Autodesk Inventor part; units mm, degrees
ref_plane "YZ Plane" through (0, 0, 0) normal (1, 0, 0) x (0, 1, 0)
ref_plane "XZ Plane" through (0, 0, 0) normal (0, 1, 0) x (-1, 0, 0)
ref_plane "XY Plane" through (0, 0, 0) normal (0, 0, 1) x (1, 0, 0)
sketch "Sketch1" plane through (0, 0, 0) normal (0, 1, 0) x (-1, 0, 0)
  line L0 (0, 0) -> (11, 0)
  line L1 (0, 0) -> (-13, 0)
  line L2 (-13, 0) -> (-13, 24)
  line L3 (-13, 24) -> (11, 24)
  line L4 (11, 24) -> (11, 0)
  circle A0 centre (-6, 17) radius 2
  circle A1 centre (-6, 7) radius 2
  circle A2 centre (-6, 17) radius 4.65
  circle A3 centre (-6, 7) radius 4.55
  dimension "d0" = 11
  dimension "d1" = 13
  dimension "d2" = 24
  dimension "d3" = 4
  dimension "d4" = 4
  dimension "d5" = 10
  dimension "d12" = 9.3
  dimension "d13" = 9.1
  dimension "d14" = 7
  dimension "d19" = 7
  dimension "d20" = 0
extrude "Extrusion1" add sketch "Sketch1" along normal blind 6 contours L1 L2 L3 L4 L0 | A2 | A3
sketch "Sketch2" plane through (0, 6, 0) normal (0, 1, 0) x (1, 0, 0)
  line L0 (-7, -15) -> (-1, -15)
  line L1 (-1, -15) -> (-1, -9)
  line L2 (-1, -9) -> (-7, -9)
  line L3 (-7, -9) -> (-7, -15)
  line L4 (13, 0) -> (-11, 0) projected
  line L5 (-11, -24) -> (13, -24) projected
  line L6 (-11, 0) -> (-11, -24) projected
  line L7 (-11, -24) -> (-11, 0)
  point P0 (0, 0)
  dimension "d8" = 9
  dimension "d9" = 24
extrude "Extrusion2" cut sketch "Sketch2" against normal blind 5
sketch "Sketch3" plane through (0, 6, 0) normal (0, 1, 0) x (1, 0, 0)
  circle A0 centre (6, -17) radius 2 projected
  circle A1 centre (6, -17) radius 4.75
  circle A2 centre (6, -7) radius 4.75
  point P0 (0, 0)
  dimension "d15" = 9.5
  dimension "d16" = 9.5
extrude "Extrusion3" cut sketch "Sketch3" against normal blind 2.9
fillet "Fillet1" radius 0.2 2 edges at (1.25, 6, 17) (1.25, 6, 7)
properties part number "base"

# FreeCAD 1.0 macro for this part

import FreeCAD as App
import Part
import Sketcher
Q = App.Units.Quantity


def edges_at(feature, points):
    """Names of the edges that pass closest to the given points."""
    edges = feature.Shape.Edges
    near = lambda p: min(range(len(edges)), key=lambda i: edges[i].distToShape(Part.Vertex(*p))[0])
    return sorted({f"Edge{near(p) + 1}" for p in points})


def add_polygon(sketch, points):
    """Adds a closed chain of lines whose ends are joined by coincident constraints."""
    first, n = sketch.GeometryCount, len(points)
    for a, b in zip(points, points[1:] + points[:1]):
        sketch.addGeometry(Part.LineSegment(App.Vector(*a, 0), App.Vector(*b, 0)), False)
    for i in range(n):
        sketch.addConstraint(Sketcher.Constraint("Coincident", first + i, 2, first + (i + 1) % n, 1))

doc = App.newDocument("Part")
params = doc.addObject("Spreadsheet::Sheet", "Params")
for row, (alias, value) in enumerate([
    ("sketch1_diameter", "4 mm"),
    ("sketch1_width", "24 mm"),
    ("pad1_length", "6 mm"),
    ("sketch2_width", "6 mm"),
    ("pocket1_length", "5 mm"),
    ("sketch3_diameter", "9.5 mm"),
    ("sketch3_diameter2", "4 mm"),
    ("pocket2_length", "2.9 mm"),
    ("fillet_radius", "0.2 mm"),
], start=1):
    params.set(f"A{row}", alias)
    params.set(f"B{row}", "=" + value)
    params.setAlias(f"B{row}", alias)

body = doc.addObject("PartDesign::Body", "Body")

sketch1 = body.newObject("Sketcher::SketchObject", "Sketch")
sketch1.AttachmentSupport = (doc.getObject("XZ_Plane"), [""])
sketch1.MapMode = "FlatFace"
add_polygon(sketch1, [(13, 0), (-11, 0), (-11, 24), (13, 24)])
sketch1.addGeometry(Part.Circle(App.Vector(6, 7, 0), App.Vector(0, 0, 1), 2), False)
sketch1.addGeometry(Part.Circle(App.Vector(6, 17, 0), App.Vector(0, 0, 1), 2), False)
sketch1.addConstraint([
    Sketcher.Constraint("Horizontal", 0),
    Sketcher.Constraint("Vertical", 1),
    Sketcher.Constraint("Horizontal", 2),
    Sketcher.Constraint("Vertical", 3),
    Sketcher.Constraint("Equal", 4, 5),
    Sketcher.Constraint("PointOnObject", 0, 2, -1),
    Sketcher.Constraint("Vertical", 4, 3, 5, 3),
    Sketcher.Constraint("Equal", 2, 1),
    Sketcher.Constraint("Diameter", 4, Q("4 mm")),
    Sketcher.Constraint("DistanceX", 0, 2, 0, 1, Q("24 mm")),
    Sketcher.Constraint("DistanceY", -1, 1, 4, 3, Q("7 mm")),
    Sketcher.Constraint("DistanceX", 0, 2, -1, 1, Q("11 mm")),
    Sketcher.Constraint("DistanceY", 4, 3, 5, 3, Q("10 mm")),
    Sketcher.Constraint("DistanceX", 5, 3, 2, 2, Q("7 mm")),
])
sketch1.setExpression("Constraints[12]", "Params.sketch1_diameter")
sketch1.setExpression("Constraints[13]", "Params.sketch1_width")
pad1 = body.newObject("PartDesign::Pad", "Pad")
pad1.Profile = sketch1
pad1.setExpression("Length", "Params.pad1_length")
pad1.Reversed = True

sketch2 = body.newObject("Sketcher::SketchObject", "Sketch001")
sketch2.AttachmentSupport = (doc.getObject("XZ_Plane"), [""])
sketch2.MapMode = "FlatFace"
sketch2.AttachmentOffset = App.Placement(App.Vector(0, 0, -6), App.Rotation())
add_polygon(sketch2, [(-7, 9), (-7, 15), (-1, 15), (-1, 9)])
sketch2.addConstraint([
    Sketcher.Constraint("Vertical", 0),
    Sketcher.Constraint("Horizontal", 1),
    Sketcher.Constraint("Vertical", 2),
    Sketcher.Constraint("Horizontal", 3),
    Sketcher.Constraint("Equal", 3, 0),
    Sketcher.Constraint("DistanceY", -1, 1, 2, 2, Q("9 mm")),
    Sketcher.Constraint("DistanceX", 1, 1, 1, 2, Q("6 mm")),
    Sketcher.Constraint("DistanceX", 0, 2, -1, 1, Q("7 mm")),
])
sketch2.setExpression("Constraints[10]", "Params.sketch2_width")
pocket1 = body.newObject("PartDesign::Pocket", "Pocket")
pocket1.Profile = sketch2
pocket1.setExpression("Length", "Params.pocket1_length")
pocket1.Reversed = True

sketch3 = body.newObject("Sketcher::SketchObject", "Sketch002")
sketch3.AttachmentSupport = (doc.getObject("XZ_Plane"), [""])
sketch3.MapMode = "FlatFace"
sketch3.AttachmentOffset = App.Placement(App.Vector(0, 0, -6), App.Rotation())
sketch3.addGeometry([
    Part.Circle(App.Vector(6, 17, 0), App.Vector(0, 0, 1), 4.8),
    Part.Circle(App.Vector(6, 17, 0), App.Vector(0, 0, 1), 2),
    Part.Circle(App.Vector(6, 7, 0), App.Vector(0, 0, 1), 4.8),
], False)
sketch3.addConstraint([
    Sketcher.Constraint("Coincident", 1, 3, 0, 3),
    Sketcher.Constraint("Equal", 0, 2),
    Sketcher.Constraint("Vertical", 1, 3, 2, 3),
    Sketcher.Constraint("Diameter", 0, Q("9.5 mm")),
    Sketcher.Constraint("Diameter", 1, Q("4 mm")),
    Sketcher.Constraint("DistanceX", -1, 1, 0, 3, Q("6 mm")),
    Sketcher.Constraint("DistanceY", -1, 1, 0, 3, Q("17 mm")),
    Sketcher.Constraint("DistanceY", -1, 1, 2, 3, Q("7 mm")),
])
sketch3.setExpression("Constraints[3]", "Params.sketch3_diameter")
sketch3.setExpression("Constraints[4]", "Params.sketch3_diameter2")
pocket2 = body.newObject("PartDesign::Pocket", "Pocket001")
pocket2.Profile = sketch3
pocket2.setExpression("Length", "Params.pocket2_length")
pocket2.Reversed = True
doc.recompute()

fillet = body.newObject("PartDesign::Fillet", "Fillet")
fillet.Base = (pocket2, edges_at(pocket2, [(1.25, 6, 17), (1.25, 6, 7)]))
fillet.setExpression("Radius", "Params.fillet_radius")

doc.recompute()
